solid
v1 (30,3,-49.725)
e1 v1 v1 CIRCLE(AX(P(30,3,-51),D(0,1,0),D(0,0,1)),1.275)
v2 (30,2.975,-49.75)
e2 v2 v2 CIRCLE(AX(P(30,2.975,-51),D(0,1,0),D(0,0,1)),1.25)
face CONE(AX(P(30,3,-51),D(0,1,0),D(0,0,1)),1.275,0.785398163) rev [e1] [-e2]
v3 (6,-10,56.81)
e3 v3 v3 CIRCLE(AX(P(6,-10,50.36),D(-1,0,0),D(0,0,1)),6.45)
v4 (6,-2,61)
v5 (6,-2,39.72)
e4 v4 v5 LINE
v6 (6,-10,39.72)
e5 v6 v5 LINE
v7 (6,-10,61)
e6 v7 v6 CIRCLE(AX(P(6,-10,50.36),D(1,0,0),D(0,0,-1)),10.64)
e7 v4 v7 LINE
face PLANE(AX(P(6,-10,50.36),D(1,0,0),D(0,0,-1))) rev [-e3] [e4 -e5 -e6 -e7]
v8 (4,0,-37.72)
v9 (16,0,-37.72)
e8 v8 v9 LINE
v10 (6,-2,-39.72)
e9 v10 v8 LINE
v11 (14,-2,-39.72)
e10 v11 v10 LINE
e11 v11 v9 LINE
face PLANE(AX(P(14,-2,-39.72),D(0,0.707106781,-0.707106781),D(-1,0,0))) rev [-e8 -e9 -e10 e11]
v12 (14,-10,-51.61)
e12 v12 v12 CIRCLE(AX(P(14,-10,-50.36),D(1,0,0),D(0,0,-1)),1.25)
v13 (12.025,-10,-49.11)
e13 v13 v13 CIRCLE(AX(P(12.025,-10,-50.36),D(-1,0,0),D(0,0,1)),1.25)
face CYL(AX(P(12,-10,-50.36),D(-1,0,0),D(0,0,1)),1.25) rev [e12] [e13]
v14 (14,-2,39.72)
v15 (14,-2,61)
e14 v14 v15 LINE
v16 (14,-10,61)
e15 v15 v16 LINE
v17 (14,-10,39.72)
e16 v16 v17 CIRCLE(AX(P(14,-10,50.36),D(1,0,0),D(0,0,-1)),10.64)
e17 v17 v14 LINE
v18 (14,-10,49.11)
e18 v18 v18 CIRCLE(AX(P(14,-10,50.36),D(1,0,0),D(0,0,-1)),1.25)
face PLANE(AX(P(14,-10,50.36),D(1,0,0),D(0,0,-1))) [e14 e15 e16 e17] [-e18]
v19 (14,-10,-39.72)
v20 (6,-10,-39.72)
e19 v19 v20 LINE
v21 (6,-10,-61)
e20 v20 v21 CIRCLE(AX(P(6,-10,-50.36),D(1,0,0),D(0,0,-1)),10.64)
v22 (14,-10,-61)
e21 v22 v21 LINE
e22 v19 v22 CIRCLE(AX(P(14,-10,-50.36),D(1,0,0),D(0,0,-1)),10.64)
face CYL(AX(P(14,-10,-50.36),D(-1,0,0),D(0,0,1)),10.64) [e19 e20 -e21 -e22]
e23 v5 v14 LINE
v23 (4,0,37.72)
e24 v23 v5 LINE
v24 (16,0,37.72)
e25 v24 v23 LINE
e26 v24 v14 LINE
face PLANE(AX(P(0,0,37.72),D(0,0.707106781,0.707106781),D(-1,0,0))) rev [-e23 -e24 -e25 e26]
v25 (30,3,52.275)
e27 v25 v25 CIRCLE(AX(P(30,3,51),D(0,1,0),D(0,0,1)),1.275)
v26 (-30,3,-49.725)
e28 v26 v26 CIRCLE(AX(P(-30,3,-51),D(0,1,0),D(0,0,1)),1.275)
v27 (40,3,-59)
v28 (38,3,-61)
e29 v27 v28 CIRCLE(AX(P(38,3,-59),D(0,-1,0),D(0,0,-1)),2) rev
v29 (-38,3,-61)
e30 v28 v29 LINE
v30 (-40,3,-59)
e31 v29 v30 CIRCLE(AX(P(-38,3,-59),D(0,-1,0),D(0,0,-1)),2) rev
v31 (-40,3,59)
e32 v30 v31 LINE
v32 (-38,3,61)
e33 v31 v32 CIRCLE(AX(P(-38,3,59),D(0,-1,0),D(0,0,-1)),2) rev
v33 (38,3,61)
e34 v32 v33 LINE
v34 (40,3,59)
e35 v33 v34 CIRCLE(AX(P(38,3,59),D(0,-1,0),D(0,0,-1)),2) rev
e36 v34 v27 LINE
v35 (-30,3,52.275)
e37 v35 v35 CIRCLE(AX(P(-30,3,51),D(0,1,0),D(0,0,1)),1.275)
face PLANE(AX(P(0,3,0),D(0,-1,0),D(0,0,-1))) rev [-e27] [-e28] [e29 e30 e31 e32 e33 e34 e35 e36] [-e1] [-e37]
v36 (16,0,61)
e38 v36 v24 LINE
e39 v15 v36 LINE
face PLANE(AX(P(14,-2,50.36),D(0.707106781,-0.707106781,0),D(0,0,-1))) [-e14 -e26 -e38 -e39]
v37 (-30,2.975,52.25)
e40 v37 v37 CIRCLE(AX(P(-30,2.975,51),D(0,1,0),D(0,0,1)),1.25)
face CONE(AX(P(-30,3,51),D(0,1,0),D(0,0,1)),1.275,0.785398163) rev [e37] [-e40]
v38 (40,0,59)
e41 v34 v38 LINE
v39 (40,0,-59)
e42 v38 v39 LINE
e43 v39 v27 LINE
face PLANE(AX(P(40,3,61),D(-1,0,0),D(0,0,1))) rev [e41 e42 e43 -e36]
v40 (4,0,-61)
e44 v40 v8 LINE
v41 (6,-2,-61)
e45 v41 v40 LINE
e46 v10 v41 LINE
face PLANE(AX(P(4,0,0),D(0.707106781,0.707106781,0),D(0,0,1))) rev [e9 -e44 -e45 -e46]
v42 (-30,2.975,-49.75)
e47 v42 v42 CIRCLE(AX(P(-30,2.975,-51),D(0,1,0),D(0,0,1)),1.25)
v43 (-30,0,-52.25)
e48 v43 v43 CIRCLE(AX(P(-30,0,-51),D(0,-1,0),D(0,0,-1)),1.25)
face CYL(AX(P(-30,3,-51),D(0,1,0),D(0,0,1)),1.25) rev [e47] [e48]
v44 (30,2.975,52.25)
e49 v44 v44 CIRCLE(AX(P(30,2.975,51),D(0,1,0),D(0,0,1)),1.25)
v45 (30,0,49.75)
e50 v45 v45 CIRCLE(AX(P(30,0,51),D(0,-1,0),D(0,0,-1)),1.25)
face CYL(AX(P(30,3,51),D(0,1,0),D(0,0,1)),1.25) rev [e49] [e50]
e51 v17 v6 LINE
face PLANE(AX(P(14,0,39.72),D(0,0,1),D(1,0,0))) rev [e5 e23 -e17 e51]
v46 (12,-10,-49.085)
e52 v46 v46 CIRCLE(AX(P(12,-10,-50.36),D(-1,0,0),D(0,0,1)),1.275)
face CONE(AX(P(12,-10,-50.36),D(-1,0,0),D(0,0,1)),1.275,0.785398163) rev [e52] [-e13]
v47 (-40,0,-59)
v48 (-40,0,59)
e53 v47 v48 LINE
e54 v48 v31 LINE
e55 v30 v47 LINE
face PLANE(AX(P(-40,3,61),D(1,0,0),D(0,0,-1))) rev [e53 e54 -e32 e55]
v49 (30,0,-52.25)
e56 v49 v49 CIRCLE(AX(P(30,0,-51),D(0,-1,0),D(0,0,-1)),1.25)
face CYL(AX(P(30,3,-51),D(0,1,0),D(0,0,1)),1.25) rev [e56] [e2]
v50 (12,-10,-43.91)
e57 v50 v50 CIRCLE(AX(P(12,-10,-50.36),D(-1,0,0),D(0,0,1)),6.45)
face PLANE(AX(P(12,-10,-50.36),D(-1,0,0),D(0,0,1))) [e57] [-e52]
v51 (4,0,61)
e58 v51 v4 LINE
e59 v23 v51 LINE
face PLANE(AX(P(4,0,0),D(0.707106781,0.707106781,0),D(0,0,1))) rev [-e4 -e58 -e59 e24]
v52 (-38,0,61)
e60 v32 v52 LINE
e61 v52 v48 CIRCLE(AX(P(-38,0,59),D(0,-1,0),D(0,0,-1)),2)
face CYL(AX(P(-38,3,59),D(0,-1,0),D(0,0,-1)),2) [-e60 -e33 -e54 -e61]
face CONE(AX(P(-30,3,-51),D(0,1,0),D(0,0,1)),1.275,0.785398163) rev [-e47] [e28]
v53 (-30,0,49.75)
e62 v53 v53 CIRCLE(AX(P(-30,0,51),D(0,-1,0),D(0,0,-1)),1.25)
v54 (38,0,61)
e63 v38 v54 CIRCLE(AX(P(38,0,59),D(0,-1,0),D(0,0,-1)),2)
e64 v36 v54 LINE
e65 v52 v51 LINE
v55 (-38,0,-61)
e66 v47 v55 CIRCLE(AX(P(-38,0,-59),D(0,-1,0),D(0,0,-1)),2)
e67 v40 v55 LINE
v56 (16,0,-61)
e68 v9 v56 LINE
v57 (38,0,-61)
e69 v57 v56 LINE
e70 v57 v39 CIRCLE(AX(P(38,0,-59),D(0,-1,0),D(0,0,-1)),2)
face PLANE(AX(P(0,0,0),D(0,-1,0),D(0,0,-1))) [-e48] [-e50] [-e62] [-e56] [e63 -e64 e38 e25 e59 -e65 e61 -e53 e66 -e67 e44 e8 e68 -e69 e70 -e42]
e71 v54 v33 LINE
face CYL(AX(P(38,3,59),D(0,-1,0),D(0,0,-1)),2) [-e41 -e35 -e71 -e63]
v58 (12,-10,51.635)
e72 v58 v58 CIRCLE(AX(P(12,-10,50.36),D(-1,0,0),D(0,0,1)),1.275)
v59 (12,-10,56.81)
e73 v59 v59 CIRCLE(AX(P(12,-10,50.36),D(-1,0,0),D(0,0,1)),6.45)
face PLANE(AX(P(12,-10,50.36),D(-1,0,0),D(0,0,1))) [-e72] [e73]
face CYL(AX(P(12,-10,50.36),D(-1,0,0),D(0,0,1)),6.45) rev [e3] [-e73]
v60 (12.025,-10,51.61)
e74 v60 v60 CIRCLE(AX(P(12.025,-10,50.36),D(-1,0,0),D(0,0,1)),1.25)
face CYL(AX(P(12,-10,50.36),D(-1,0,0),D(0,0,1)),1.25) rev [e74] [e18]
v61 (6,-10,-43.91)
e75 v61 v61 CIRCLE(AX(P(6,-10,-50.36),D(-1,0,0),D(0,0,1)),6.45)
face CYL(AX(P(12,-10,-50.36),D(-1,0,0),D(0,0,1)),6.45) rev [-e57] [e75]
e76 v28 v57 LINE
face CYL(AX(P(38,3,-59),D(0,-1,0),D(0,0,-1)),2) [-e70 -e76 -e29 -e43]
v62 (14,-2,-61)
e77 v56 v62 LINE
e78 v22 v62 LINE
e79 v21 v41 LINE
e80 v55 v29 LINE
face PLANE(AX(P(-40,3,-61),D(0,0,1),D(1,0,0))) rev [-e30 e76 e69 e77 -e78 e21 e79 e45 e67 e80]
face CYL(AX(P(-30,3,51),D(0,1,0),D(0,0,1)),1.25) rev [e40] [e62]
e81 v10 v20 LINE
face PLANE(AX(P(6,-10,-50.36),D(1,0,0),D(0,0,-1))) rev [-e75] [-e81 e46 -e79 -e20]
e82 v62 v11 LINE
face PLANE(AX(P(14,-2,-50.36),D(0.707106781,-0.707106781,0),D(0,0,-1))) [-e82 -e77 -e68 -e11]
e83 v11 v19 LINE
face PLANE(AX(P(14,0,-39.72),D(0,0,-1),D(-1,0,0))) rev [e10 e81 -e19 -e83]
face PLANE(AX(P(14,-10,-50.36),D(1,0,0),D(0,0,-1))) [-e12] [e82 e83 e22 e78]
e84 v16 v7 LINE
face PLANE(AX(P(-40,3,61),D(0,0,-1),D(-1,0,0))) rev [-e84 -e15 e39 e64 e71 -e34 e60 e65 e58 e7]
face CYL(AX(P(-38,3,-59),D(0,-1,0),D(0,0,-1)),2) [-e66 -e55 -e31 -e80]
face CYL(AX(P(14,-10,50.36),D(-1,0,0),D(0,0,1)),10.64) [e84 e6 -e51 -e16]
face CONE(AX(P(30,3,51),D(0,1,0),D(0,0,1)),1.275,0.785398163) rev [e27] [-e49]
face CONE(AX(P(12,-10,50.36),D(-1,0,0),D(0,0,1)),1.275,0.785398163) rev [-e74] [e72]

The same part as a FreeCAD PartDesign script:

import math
import FreeCAD as App
import Part
import Sketcher
from FreeCAD import Vector
Q = App.Units.Quantity


def edges_at(feature, points):
    """Names of the edges that pass closest to the given points."""
    edges = feature.Shape.Edges
    near = lambda p: min(range(len(edges)), key=lambda i: edges[i].distToShape(Part.Vertex(*p))[0])
    return sorted({f"Edge{near(p) + 1}" for p in points})


def add_polygon(sketch, points):
    """Adds a closed chain of lines whose ends are joined by coincident constraints."""
    first, n = sketch.GeometryCount, len(points)
    for a, b in zip(points, points[1:] + points[:1]):
        sketch.addGeometry(Part.LineSegment(App.Vector(*a, 0), App.Vector(*b, 0)), False)
    for i in range(n):
        sketch.addConstraint(Sketcher.Constraint("Coincident", first + i, 2, first + (i + 1) % n, 1))

doc = App.newDocument("Part")
body = doc.addObject("PartDesign::Body", "Body")

# Sketch on XZ plane
sketch1 = body.newObject("Sketcher::SketchObject", "Sketch")
sketch1.AttachmentSupport = (doc.getObject("XZ_Plane"), [""])
sketch1.MapMode = "FlatFace"
add_polygon(sketch1, [(-40, -61), (-40, 61), (40, 61), (40, -61)])  # lines 0-3
sketch1.addConstraint([
    Sketcher.Constraint("Vertical", 0),
    Sketcher.Constraint("Horizontal", 1),
    Sketcher.Constraint("Vertical", 2),
    Sketcher.Constraint("Horizontal", 3),
    Sketcher.Constraint("Symmetric", 0, 2, 2, 2, -1, 1),
    Sketcher.Constraint("DistanceX", 1, 1, 1, 2, Q("80 mm")),
    Sketcher.Constraint("DistanceY", 0, 1, 0, 2, Q("122 mm")),
])
pad1 = body.newObject("PartDesign::Pad", "Pad")
pad1.Profile = sketch1
pad1.Length = 3
pad1.Reversed = True

# Sketch on YZ plane
sketch2 = body.newObject("Sketcher::SketchObject", "Sketch001")
sketch2.AttachmentSupport = (doc.getObject("YZ_Plane"), [""])
sketch2.MapMode = "FlatFace"
sketch2.AttachmentOffset = App.Placement(Vector(0, 0, 6), App.Rotation())
sketch2.addGeometry([
    Part.LineSegment(Vector(0, 61, 0), Vector(-10, 61, 0)),  # 0
    Part.ArcOfCircle(Part.Circle(Vector(-10, 50, 0), Vector(0, 0, 1), 11), math.radians(90), math.radians(270)),  # 1
    Part.LineSegment(Vector(-10, 40, 0), Vector(0, 40, 0)),  # 2
    Part.LineSegment(Vector(0, 40, 0), Vector(0, 61, 0)),  # 3
    Part.LineSegment(Vector(-10, -61, 0), Vector(0, -61, 0)),  # 4
    Part.LineSegment(Vector(0, -61, 0), Vector(0, -40, 0)),  # 5
    Part.LineSegment(Vector(0, -40, 0), Vector(-10, -40, 0)),  # 6
    Part.ArcOfCircle(Part.Circle(Vector(-10, -50, 0), Vector(0, 0, 1), 11), math.radians(90), math.radians(270)),  # 7
], False)
sketch2.addConstraint([
    Sketcher.Constraint("Tangent", 0, 2, 1, 1),
    Sketcher.Constraint("Tangent", 1, 2, 2, 1),
    Sketcher.Constraint("Coincident", 2, 2, 3, 1),
    Sketcher.Constraint("Coincident", 3, 2, 0, 1),
    Sketcher.Constraint("Coincident", 4, 2, 5, 1),
    Sketcher.Constraint("Coincident", 5, 2, 6, 1),
    Sketcher.Constraint("Tangent", 6, 2, 7, 1),
    Sketcher.Constraint("Tangent", 7, 2, 4, 1),
    Sketcher.Constraint("Horizontal", 0),
    Sketcher.Constraint("Horizontal", 2),
    Sketcher.Constraint("Vertical", 3),
    Sketcher.Constraint("Horizontal", 4),
    Sketcher.Constraint("Vertical", 5),
    Sketcher.Constraint("Horizontal", 6),
    Sketcher.Constraint("Equal", 1, 7),
    Sketcher.Constraint("Symmetric", 3, 2, 4, 2, -1, 1),
    Sketcher.Constraint("PointOnObject", 2, 2, -2),
    Sketcher.Constraint("Vertical", 1, 3, 7, 3),
    Sketcher.Constraint("DistanceX", 0, 2, 0, 1, Q("10 mm")),
    Sketcher.Constraint("Radius", 1, Q("10.64 mm")),
    Sketcher.Constraint("DistanceY", -1, 1, 0, 2, Q("61 mm")),
])
pad2 = body.newObject("PartDesign::Pad", "Pad001")
pad2.Profile = sketch2
pad2.Length = 8

# Sketch on YZ plane
sketch3 = body.newObject("Sketcher::SketchObject", "Sketch002")
sketch3.AttachmentSupport = (doc.getObject("YZ_Plane"), [""])
sketch3.MapMode = "FlatFace"
sketch3.AttachmentOffset = App.Placement(Vector(0, 0, 6), App.Rotation())
sketch3.addGeometry([
    Part.Circle(Vector(-10, -50, 0), Vector(0, 0, 1), 6),
    Part.Circle(Vector(-10, 50, 0), Vector(0, 0, 1), 6),
], False)
sketch3.addConstraint([
    Sketcher.Constraint("Equal", 0, 1),
    Sketcher.Constraint("Symmetric", 0, 3, 1, 3, -1),
    Sketcher.Constraint("Diameter", 0, Q("12.9 mm")),
    Sketcher.Constraint("DistanceX", 0, 3, -1, 1, Q("10 mm")),
    Sketcher.Constraint("DistanceY", 0, 3, -1, 1, Q("50.36 mm")),
])
pocket1 = body.newObject("PartDesign::Pocket", "Pocket")
pocket1.Profile = sketch3
pocket1.Length = 6
pocket1.Reversed = True
doc.recompute()

chamfer = body.newObject("PartDesign::Chamfer", "Chamfer")
chamfer.Base = (pocket1, edges_at(pocket1, [
    (6, 0, 50.36),
    (10, 0, 39.72),
    (14, 0, 50.36),
    (6, 0, -50.36),
    (10, 0, -39.72),
    (14, 0, -50.36),
]))
chamfer.Size = 2
doc.recompute()

fillet = body.newObject("PartDesign::Fillet", "Fillet")
fillet.Base = (chamfer, edges_at(chamfer, [
    (40, 1.5, 61),
    (-40, 1.5, 61),
    (-40, 1.5, -61),
    (40, 1.5, -61),
]))
fillet.Radius = 2

# Sketch on XZ plane
sketch4 = body.newObject("Sketcher::SketchObject", "Sketch003")
sketch4.AttachmentSupport = (doc.getObject("XZ_Plane"), [""])
sketch4.MapMode = "FlatFace"
sketch4.AttachmentOffset = App.Placement(Vector(0, 0, -3), App.Rotation())
sketch4.addGeometry([
    Part.Circle(Vector(-30, -51, 0), Vector(0, 0, 1), 1.2),
    Part.Circle(Vector(-30, 51, 0), Vector(0, 0, 1), 1.2),
    Part.Circle(Vector(30, 51, 0), Vector(0, 0, 1), 1.2),
    Part.Circle(Vector(30, -51, 0), Vector(0, 0, 1), 1.2),
], False)
sketch4.addConstraint([
    Sketcher.Constraint("Equal", 0, 1),
    Sketcher.Constraint("Equal", 1, 2),
    Sketcher.Constraint("Equal", 2, 3),
    Sketcher.Constraint("Symmetric", 0, 3, 2, 3, -1, 1),
    Sketcher.Constraint("Symmetric", 1, 3, 3, 3, -1, 1),
    Sketcher.Constraint("Symmetric", 1, 3, 2, 3, -2),
    Sketcher.Constraint("Diameter", 0, Q("2.5 mm")),
    Sketcher.Constraint("DistanceX", 0, 3, -1, 1, Q("30 mm")),
    Sketcher.Constraint("DistanceY", 0, 3, -1, 1, Q("51 mm")),
])
doc.recompute()
hole = body.newObject("PartDesign::Hole", "Hole")
hole.Profile = sketch4
hole.ThreadType = "None"
hole.Diameter = 2.5
hole.DepthType = "Dimension"
hole.Depth = 5
hole.DrillPoint = "Angled"
hole.DrillPointAngle = 118
hole.HoleCutType = "Countersink"
hole.HoleCutDiameter = 2.55
hole.HoleCutCountersinkAngle = 90
hole.Reversed = True

# Sketch on YZ plane
sketch5 = body.newObject("Sketcher::SketchObject", "Sketch004")
sketch5.AttachmentSupport = (doc.getObject("YZ_Plane"), [""])
sketch5.MapMode = "FlatFace"
sketch5.AttachmentOffset = App.Placement(Vector(0, 0, 12), App.Rotation())
sketch5.addGeometry([
    Part.Circle(Vector(-10, -50.4, 0), Vector(0, 0, 1), 1.2),
    Part.Circle(Vector(-10, 50.4, 0), Vector(0, 0, 1), 1.2),
], False)
sketch5.addConstraint([
    Sketcher.Constraint("Equal", 0, 1),
    Sketcher.Constraint("Symmetric", 0, 3, 1, 3, -1),
    Sketcher.Constraint("Diameter", 0, Q("2.5 mm")),
    Sketcher.Constraint("DistanceX", 0, 3, -1, 1, Q("10 mm")),
    Sketcher.Constraint("DistanceY", 0, 3, -1, 1, Q("50.36 mm")),
])
doc.recompute()
hole2 = body.newObject("PartDesign::Hole", "Hole001")
hole2.Profile = sketch5
hole2.ThreadType = "None"
hole2.Diameter = 2.5
hole2.DepthType = "Dimension"
hole2.Depth = 5
hole2.DrillPoint = "Angled"
hole2.DrillPointAngle = 118
hole2.HoleCutType = "Countersink"
hole2.HoleCutDiameter = 2.55
hole2.HoleCutCountersinkAngle = 90
hole2.Reversed = True

doc.recompute()
